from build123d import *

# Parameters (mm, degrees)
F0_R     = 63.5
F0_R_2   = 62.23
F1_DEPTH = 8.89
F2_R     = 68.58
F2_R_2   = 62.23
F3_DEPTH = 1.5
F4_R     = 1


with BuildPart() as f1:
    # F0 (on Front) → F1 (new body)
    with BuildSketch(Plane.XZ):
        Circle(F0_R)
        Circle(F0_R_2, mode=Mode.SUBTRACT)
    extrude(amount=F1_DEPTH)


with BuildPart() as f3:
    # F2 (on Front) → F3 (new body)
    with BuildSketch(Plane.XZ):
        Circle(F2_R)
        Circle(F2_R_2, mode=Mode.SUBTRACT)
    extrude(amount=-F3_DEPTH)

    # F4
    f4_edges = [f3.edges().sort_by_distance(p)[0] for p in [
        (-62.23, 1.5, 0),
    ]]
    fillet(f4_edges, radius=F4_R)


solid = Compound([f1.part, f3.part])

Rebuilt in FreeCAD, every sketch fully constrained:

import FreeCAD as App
import Part
import Sketcher
Q = App.Units.Quantity


def edges_at(feature, points):
    """Names of the edges that pass closest to the given points."""
    edges = feature.Shape.Edges
    near = lambda p: min(range(len(edges)), key=lambda i: edges[i].distToShape(Part.Vertex(*p))[0])
    return sorted({f"Edge{near(p) + 1}" for p in points})

doc = App.newDocument("Part")
params = doc.addObject("Spreadsheet::Sheet", "Params")
for row, (alias, value) in enumerate([
    ("sketch1_diameter", "5 in"),
    ("sketch1_diameter2", "4.9 in"),
    ("pad1_length", "0.35 in"),
    ("sketch2_diameter", "5.4 in"),
    ("sketch2_diameter2", "4.9 in"),
    ("pad2_length", "1.5 mm"),
    ("fillet_radius", "1 mm"),
], start=1):
    params.set(f"A{row}", alias)
    params.set(f"B{row}", "=" + value)
    params.setAlias(f"B{row}", alias)

body = doc.addObject("PartDesign::Body", "Body")

sketch1 = doc.addObject("Sketcher::SketchObject", "Sketch")
body.addObject(sketch1)
sketch1.AttachmentSupport = (doc.XZ_Plane, [""])
sketch1.MapMode = "FlatFace"
sketch1.addGeometry([
    Part.Circle(App.Vector(0, 0, 0), App.Vector(0, 0, 1), 64),
    Part.Circle(App.Vector(0, 0, 0), App.Vector(0, 0, 1), 62),
], False)
sketch1.addConstraint([
    Sketcher.Constraint("Coincident", 0, 3, -1, 1),
    Sketcher.Constraint("Coincident", 1, 3, -1, 1),
    Sketcher.Constraint("Diameter", 0, Q("5 in")),
    Sketcher.Constraint("Diameter", 1, Q("4.9 in")),
])
sketch1.setExpression("Constraints[2]", "Params.sketch1_diameter")
sketch1.setExpression("Constraints[3]", "Params.sketch1_diameter2")
pad1 = doc.addObject("PartDesign::Pad", "Pad")
body.addObject(pad1)
pad1.Profile = sketch1
pad1.setExpression("Length", "Params.pad1_length")
body2 = doc.addObject("PartDesign::Body", "Body001")

sketch2 = doc.addObject("Sketcher::SketchObject", "Sketch001")
body2.addObject(sketch2)
sketch2.AttachmentSupport = (doc.getObject("XZ_Plane001"), [""])
sketch2.MapMode = "FlatFace"
sketch2.addGeometry([
    Part.Circle(App.Vector(0, 0, 0), App.Vector(0, 0, 1), 69),
    Part.Circle(App.Vector(0, 0, 0), App.Vector(0, 0, 1), 62),
], False)
sketch2.addConstraint([
    Sketcher.Constraint("Coincident", 0, 3, -1, 1),
    Sketcher.Constraint("Coincident", 1, 3, -1, 1),
    Sketcher.Constraint("Diameter", 0, Q("5.4 in")),
    Sketcher.Constraint("Diameter", 1, Q("4.9 in")),
])
sketch2.setExpression("Constraints[2]", "Params.sketch2_diameter")
sketch2.setExpression("Constraints[3]", "Params.sketch2_diameter2")
pad2 = doc.addObject("PartDesign::Pad", "Pad001")
body2.addObject(pad2)
pad2.Profile = sketch2
pad2.setExpression("Length", "Params.pad2_length")
pad2.Reversed = True
doc.recompute()

fillet = doc.addObject("PartDesign::Fillet", "Fillet")
body2.addObject(fillet)
fillet.Base = (pad2, edges_at(pad2, [(-62.23, 1.5, 0)]))
fillet.setExpression("Radius", "Params.fillet_radius")

doc.recompute()
